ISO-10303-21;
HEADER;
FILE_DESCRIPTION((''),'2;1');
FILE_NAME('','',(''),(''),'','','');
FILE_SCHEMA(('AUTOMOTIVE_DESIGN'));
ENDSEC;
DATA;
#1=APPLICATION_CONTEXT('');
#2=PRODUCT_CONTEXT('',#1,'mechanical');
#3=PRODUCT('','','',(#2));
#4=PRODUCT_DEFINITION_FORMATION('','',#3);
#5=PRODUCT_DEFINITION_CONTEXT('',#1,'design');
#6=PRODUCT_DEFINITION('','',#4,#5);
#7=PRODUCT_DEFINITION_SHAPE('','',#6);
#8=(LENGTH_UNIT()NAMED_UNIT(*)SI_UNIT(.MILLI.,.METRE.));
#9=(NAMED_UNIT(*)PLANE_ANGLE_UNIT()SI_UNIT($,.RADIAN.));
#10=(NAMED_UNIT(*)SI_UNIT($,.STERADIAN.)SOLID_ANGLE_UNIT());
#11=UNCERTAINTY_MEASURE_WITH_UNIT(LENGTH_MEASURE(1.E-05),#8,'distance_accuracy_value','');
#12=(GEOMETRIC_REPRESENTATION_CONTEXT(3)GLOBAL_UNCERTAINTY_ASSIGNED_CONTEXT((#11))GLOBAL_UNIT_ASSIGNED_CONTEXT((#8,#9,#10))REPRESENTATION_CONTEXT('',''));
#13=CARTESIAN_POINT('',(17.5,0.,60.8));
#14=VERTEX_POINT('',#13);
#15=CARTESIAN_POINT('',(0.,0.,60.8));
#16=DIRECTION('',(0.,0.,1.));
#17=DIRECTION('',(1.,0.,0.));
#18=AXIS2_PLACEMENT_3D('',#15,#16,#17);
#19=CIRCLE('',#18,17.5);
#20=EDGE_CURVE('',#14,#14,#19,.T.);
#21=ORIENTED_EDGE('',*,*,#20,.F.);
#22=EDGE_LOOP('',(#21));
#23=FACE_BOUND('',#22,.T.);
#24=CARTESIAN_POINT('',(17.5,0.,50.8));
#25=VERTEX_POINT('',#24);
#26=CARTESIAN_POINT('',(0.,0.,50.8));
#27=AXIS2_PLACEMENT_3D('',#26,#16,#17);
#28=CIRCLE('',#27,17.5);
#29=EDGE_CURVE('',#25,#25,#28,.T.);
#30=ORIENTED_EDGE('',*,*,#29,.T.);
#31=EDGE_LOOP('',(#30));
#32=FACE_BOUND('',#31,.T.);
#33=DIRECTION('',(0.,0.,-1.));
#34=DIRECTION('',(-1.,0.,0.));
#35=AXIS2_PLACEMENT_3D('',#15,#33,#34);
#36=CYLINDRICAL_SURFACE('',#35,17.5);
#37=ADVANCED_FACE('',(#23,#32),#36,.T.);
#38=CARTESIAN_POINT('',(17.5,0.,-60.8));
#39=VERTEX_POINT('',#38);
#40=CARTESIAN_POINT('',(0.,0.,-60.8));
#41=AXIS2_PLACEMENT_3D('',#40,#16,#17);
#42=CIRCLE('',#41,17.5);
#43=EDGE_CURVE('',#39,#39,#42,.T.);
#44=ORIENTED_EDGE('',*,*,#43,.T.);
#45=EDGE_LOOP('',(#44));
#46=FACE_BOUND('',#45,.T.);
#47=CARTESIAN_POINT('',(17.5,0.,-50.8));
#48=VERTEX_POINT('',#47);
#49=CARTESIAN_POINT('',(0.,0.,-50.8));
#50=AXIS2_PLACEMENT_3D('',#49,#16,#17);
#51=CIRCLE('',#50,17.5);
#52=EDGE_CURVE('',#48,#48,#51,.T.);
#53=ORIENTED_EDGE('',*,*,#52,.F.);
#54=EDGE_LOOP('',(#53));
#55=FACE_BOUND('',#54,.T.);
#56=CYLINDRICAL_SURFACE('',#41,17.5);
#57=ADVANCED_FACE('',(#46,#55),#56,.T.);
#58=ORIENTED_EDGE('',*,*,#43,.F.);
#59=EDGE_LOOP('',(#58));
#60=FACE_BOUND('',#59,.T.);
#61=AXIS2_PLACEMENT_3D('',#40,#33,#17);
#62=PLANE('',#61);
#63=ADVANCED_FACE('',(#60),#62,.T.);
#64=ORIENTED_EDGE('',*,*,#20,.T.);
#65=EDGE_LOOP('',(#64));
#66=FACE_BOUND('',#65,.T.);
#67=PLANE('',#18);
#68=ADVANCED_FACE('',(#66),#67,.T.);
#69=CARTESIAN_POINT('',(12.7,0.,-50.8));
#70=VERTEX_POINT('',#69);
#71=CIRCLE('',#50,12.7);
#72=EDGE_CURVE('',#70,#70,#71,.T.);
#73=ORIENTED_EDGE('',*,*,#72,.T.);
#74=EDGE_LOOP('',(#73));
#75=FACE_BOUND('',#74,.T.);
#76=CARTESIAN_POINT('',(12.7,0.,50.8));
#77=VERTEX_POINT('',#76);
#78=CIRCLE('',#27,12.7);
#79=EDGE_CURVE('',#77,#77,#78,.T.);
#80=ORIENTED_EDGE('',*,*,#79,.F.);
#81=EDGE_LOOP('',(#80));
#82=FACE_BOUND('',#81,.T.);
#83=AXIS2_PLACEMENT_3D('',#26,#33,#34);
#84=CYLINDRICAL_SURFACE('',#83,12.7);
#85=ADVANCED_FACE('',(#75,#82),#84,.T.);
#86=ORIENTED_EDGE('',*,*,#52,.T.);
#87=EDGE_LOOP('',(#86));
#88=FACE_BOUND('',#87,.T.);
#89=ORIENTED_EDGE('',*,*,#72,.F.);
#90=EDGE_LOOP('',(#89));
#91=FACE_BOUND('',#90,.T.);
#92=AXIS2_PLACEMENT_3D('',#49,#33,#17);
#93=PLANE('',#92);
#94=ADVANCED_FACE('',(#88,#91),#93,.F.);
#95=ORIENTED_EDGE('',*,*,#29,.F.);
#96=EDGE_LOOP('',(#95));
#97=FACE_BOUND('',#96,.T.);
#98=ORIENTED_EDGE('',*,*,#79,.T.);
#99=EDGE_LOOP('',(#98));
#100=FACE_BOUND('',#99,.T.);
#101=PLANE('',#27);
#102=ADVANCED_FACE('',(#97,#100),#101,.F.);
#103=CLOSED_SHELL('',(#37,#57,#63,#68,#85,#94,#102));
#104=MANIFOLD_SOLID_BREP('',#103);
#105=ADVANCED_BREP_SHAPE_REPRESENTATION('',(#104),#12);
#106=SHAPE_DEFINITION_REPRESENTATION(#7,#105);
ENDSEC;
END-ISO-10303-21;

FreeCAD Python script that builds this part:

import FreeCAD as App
import Part
import Sketcher

V = App.Vector
Q = App.Units.Quantity

doc = App.newDocument("Part")
params = doc.addObject("Spreadsheet::Sheet", "Params")
for row, (alias, value) in enumerate([
    ("sketch1_diameter", "25.4 mm"),
    ("pad1_length", "101.6 mm"),
    ("sketch2_diameter", "35 mm"),
    ("pad2_length", "10 mm"),
], start=1):
    params.set(f"A{row}", alias)
    params.set(f"B{row}", "=" + value)
    params.setAlias(f"B{row}", alias)

body = doc.addObject("PartDesign::Body", "Body")

sketch1 = doc.addObject("Sketcher::SketchObject", "Sketch")
body.addObject(sketch1)
sketch1.AttachmentSupport = (doc.XY_Plane, [""])
sketch1.MapMode = "FlatFace"
sketch1.addGeometry(Part.Circle(V(0, 0, 0), V(0, 0, 1), 13), False)
sketch1.addConstraint(Sketcher.Constraint("Coincident", 0, 3, -1, 1))
sketch1.addConstraint(Sketcher.Constraint("Diameter", 0, Q("25.4 mm")))
sketch1.setExpression("Constraints[1]", "Params.sketch1_diameter")
pad1 = doc.addObject("PartDesign::Pad", "Pad")
body.addObject(pad1)
pad1.Profile = sketch1
pad1.setExpression("Length", "Params.pad1_length")
pad1.Midplane = True

sketch2 = doc.addObject("Sketcher::SketchObject", "Sketch001")
body.addObject(sketch2)
sketch2.AttachmentSupport = (doc.XY_Plane, [""])
sketch2.MapMode = "FlatFace"
sketch2.AttachmentOffset = App.Placement(V(0, 0, 50.8), App.Rotation())
sketch2.addGeometry(Part.Circle(V(0, 0, 0), V(0, 0, 1), 18), False)
sketch2.addConstraint(Sketcher.Constraint("Coincident", 0, 3, -1, 1))
sketch2.addConstraint(Sketcher.Constraint("Diameter", 0, Q("35 mm")))
sketch2.setExpression("Constraints[1]", "Params.sketch2_diameter")
pad2 = doc.addObject("PartDesign::Pad", "Pad001")
body.addObject(pad2)
pad2.Profile = sketch2
pad2.setExpression("Length", "Params.pad2_length")
doc.recompute()

mirrored = doc.addObject("PartDesign::Mirrored", "Mirrored")
body.addObject(mirrored)
mirrored.Originals = [pad2]
mirrored.MirrorPlane = (doc.XY_Plane, [""])
body.Tip = mirrored

doc.recompute()
